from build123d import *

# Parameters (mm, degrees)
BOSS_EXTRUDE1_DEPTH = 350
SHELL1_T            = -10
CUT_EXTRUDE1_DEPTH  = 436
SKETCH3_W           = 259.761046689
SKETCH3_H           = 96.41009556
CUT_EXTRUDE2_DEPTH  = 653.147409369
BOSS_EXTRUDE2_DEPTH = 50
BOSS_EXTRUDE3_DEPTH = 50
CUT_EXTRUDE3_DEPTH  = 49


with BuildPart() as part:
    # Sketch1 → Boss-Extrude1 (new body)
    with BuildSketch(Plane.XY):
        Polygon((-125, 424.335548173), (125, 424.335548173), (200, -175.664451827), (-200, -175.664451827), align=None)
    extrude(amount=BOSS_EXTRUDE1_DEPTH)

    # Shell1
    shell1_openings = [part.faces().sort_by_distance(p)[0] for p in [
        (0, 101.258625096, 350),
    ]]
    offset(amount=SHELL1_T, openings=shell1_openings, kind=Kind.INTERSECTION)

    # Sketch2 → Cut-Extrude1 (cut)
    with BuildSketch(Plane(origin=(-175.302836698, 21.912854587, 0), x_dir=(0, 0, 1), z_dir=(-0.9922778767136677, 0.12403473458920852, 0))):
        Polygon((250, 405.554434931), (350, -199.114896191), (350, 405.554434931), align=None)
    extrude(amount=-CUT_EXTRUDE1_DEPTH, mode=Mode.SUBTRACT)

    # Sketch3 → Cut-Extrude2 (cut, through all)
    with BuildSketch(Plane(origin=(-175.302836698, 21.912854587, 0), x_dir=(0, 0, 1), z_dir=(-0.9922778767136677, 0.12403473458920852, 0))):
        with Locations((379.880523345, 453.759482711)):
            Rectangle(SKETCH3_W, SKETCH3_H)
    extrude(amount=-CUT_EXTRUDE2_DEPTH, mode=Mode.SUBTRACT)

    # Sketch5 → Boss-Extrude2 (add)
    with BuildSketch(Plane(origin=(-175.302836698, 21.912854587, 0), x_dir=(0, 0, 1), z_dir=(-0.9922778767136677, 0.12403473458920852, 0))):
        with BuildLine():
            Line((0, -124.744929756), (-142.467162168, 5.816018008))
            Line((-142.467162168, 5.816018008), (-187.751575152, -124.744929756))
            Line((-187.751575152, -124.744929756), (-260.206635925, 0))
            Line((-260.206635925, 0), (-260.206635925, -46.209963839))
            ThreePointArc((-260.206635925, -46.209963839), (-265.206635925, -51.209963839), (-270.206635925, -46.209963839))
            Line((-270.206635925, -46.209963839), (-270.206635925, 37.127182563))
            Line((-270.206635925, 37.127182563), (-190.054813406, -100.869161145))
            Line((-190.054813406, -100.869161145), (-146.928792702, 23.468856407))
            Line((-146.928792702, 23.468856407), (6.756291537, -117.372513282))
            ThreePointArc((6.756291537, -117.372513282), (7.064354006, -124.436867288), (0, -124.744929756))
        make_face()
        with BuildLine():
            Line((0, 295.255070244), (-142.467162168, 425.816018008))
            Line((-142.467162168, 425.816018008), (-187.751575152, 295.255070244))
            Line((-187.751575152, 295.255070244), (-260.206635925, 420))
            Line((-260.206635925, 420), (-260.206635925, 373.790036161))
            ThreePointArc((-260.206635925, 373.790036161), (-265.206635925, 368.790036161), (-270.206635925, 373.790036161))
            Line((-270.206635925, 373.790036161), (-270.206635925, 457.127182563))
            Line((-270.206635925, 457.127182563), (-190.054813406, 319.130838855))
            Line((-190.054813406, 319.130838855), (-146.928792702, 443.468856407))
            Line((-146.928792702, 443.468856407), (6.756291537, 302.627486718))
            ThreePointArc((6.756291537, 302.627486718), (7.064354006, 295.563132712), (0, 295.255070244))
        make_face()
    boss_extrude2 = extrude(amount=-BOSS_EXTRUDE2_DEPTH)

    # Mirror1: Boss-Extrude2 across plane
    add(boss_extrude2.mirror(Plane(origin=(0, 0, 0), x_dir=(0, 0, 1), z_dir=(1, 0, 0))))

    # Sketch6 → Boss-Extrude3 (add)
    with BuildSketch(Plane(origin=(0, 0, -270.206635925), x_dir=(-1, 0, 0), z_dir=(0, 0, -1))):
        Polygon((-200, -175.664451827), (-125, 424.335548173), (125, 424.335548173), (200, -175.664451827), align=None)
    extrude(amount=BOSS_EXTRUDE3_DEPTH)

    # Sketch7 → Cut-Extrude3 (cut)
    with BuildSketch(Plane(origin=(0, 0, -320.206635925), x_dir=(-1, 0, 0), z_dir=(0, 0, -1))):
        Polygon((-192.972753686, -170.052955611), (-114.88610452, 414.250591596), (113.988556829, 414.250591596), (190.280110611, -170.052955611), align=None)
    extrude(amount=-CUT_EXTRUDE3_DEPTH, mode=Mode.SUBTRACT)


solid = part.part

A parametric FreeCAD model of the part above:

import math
import FreeCAD as App
import Part
import Sketcher

V = App.Vector
Q = App.Units.Quantity


def faces_at(feature, points):
    """Names of the faces that lie closest to the given points."""
    faces = feature.Shape.Faces
    near = lambda p: min(range(len(faces)), key=lambda i: faces[i].distToShape(Part.Vertex(*p))[0])
    return sorted({f"Face{near(p) + 1}" for p in points})

doc = App.newDocument("Part")
body = doc.addObject("PartDesign::Body", "Body")

sketch1 = body.newObject("Sketcher::SketchObject", "Sketch")
sketch1.AttachmentSupport = (doc.getObject("XY_Plane"), [""])
sketch1.MapMode = "FlatFace"
sketch1.addGeometry(Part.LineSegment(V(125, 424.335548, 0), V(-125, 424.335548, 0)), False)
sketch1.addGeometry(Part.LineSegment(V(-125, 424.335548, 0), V(-200, -175.664452, 0)), False)
sketch1.addGeometry(Part.LineSegment(V(-200, -175.664452, 0), V(200, -175.664452, 0)), False)
sketch1.addGeometry(Part.LineSegment(V(200, -175.664452, 0), V(125, 424.335548, 0)), False)
sketch1.addConstraint(Sketcher.Constraint("Coincident", 0, 2, 1, 1))
sketch1.addConstraint(Sketcher.Constraint("Coincident", 1, 2, 2, 1))
sketch1.addConstraint(Sketcher.Constraint("Coincident", 2, 2, 3, 1))
sketch1.addConstraint(Sketcher.Constraint("Coincident", 3, 2, 0, 1))
sketch1.addConstraint(Sketcher.Constraint("Horizontal", 0))
sketch1.addConstraint(Sketcher.Constraint("Horizontal", 2))
sketch1.addConstraint(Sketcher.Constraint("Equal", 1, 3))
sketch1.addConstraint(Sketcher.Constraint("DistanceX", 0, 2, 0, 1, Q("250 mm")))
sketch1.addConstraint(Sketcher.Constraint("DistanceX", 2, 1, 2, 2, Q("400 mm")))
sketch1.addConstraint(Sketcher.Constraint("DistanceX", 0, 2, -1, 1, Q("125 mm")))
sketch1.addConstraint(Sketcher.Constraint("DistanceY", 1, 2, 0, 2, Q("600 mm")))
sketch1.addConstraint(Sketcher.Constraint("DistanceY", -1, 1, 0, 2, Q("424.335548 mm")))
pad1 = body.newObject("PartDesign::Pad", "Pad")
pad1.Profile = sketch1
pad1.Length = 350
doc.recompute()

thickness = body.newObject("PartDesign::Thickness", "Thickness")
thickness.Base = (pad1, faces_at(pad1, [(0, 124.336, 350)]))
thickness.Value = 10
thickness.Reversed = True
thickness.Join = "Intersection"

sketch2 = body.newObject("Sketcher::SketchObject", "Sketch001")
sketch2.Placement = App.Placement(V(-175.302837, 21.912855, 0), App.Rotation(V(0, 0, 1), V(0.124034735, 0.992277877, 0), V(-0.992277877, 0.124034735, 0), "ZXY"))
sketch2.addGeometry(Part.LineSegment(V(250, 405.554435, 0), V(350, -199.114896, 0)), False)
sketch2.addGeometry(Part.LineSegment(V(350, -199.114896, 0), V(350, 405.554435, 0)), False)
sketch2.addGeometry(Part.LineSegment(V(350, 405.554435, 0), V(250, 405.554435, 0)), False)
sketch2.addConstraint(Sketcher.Constraint("Coincident", 0, 2, 1, 1))
sketch2.addConstraint(Sketcher.Constraint("Coincident", 1, 2, 2, 1))
sketch2.addConstraint(Sketcher.Constraint("Coincident", 2, 2, 0, 1))
sketch2.addConstraint(Sketcher.Constraint("Vertical", 1))
sketch2.addConstraint(Sketcher.Constraint("Horizontal", 2))
sketch2.addConstraint(Sketcher.Constraint("DistanceX", 2, 2, 2, 1, Q("100 mm")))
sketch2.addConstraint(Sketcher.Constraint("DistanceX", -1, 1, 0, 2, Q("350 mm")))
sketch2.addConstraint(Sketcher.Constraint("DistanceY", 1, 1, 1, 2, Q("604.669332 mm")))
sketch2.addConstraint(Sketcher.Constraint("DistanceY", 0, 2, -1, 1, Q("199.114896 mm")))
pocket1 = body.newObject("PartDesign::Pocket", "Pocket")
pocket1.Profile = sketch2
pocket1.Length = 436

sketch3 = body.newObject("Sketcher::SketchObject", "Sketch002")
sketch3.Placement = App.Placement(V(-175.302837, 21.912855, 0), App.Rotation(V(0, 0, 1), V(0.124034735, 0.992277877, 0), V(-0.992277877, 0.124034735, 0), "ZXY"))
sketch3.addGeometry(Part.LineSegment(V(250, 501.964531, 0), V(250, 405.554435, 0)), False)
sketch3.addGeometry(Part.LineSegment(V(250, 405.554435, 0), V(509.761047, 405.554435, 0)), False)
sketch3.addGeometry(Part.LineSegment(V(509.761047, 405.554435, 0), V(509.761047, 501.964531, 0)), False)
sketch3.addGeometry(Part.LineSegment(V(509.761047, 501.964531, 0), V(250, 501.964531, 0)), False)
sketch3.addConstraint(Sketcher.Constraint("Coincident", 0, 2, 1, 1))
sketch3.addConstraint(Sketcher.Constraint("Coincident", 1, 2, 2, 1))
sketch3.addConstraint(Sketcher.Constraint("Coincident", 2, 2, 3, 1))
sketch3.addConstraint(Sketcher.Constraint("Coincident", 3, 2, 0, 1))
sketch3.addConstraint(Sketcher.Constraint("Vertical", 0))
sketch3.addConstraint(Sketcher.Constraint("Horizontal", 1))
sketch3.addConstraint(Sketcher.Constraint("Vertical", 2))
sketch3.addConstraint(Sketcher.Constraint("Horizontal", 3))
sketch3.addConstraint(Sketcher.Constraint("DistanceX", -1, 1, 0, 2, Q("250 mm")))
sketch3.addConstraint(Sketcher.Constraint("DistanceX", 1, 1, 1, 2, Q("259.761047 mm")))
sketch3.addConstraint(Sketcher.Constraint("DistanceY", 0, 2, 0, 1, Q("96.410096 mm")))
sketch3.addConstraint(Sketcher.Constraint("DistanceY", -1, 1, 2, 2, Q("501.964531 mm")))
pocket2 = body.newObject("PartDesign::Pocket", "Pocket001")
pocket2.Profile = sketch3
pocket2.Type = "ThroughAll"

sketch4 = body.newObject("Sketcher::SketchObject", "Sketch003")
sketch4.Placement = App.Placement(V(-175.302837, 21.912855, 0), App.Rotation(V(0, 0, 1), V(0.124034735, 0.992277877, 0), V(-0.992277877, 0.124034735, 0), "ZXY"))
sketch4.addGeometry(Part.LineSegment(V(-142.467162, 5.816018, 0), V(0, -124.74493, 0)), False)
sketch4.addGeometry(Part.ArcOfCircle(Part.Circle(V(3.378146, -121.058722, 0), V(0, 0, 1), 5), math.radians(-132.503027), math.radians(47.496973)), False)
sketch4.addGeometry(Part.LineSegment(V(6.756292, -117.372513, 0), V(-146.928793, 23.468856, 0)), False)
sketch4.addGeometry(Part.LineSegment(V(-146.928793, 23.468856, 0), V(-190.054813, -100.869161, 0)), False)
sketch4.addGeometry(Part.LineSegment(V(-190.054813, -100.869161, 0), V(-270.206636, 37.127183, 0)), False)
sketch4.addGeometry(Part.LineSegment(V(-270.206636, 37.127183, 0), V(-270.206636, -46.209964, 0)), False)
sketch4.addGeometry(Part.ArcOfCircle(Part.Circle(V(-265.206636, -46.209964, 0), V(0, 0, 1), 5), math.radians(180), math.radians(360)), False)
sketch4.addGeometry(Part.LineSegment(V(-260.206636, -46.209964, 0), V(-260.206636, 0, 0)), False)
sketch4.addGeometry(Part.LineSegment(V(-260.206636, 0, 0), V(-187.751575, -124.74493, 0)), False)
sketch4.addGeometry(Part.LineSegment(V(-187.751575, -124.74493, 0), V(-142.467162, 5.816018, 0)), False)
sketch4.addGeometry(Part.LineSegment(V(-142.467162, 425.816018, 0), V(0, 295.25507, 0)), False)
sketch4.addGeometry(Part.ArcOfCircle(Part.Circle(V(3.378146, 298.941279, 0), V(0, 0, 1), 5), math.radians(-132.503027), math.radians(47.496973)), False)
sketch4.addGeometry(Part.LineSegment(V(6.756292, 302.627487, 0), V(-146.928793, 443.468857, 0)), False)
sketch4.addGeometry(Part.LineSegment(V(-146.928793, 443.468857, 0), V(-190.054813, 319.130839, 0)), False)
sketch4.addGeometry(Part.LineSegment(V(-190.054813, 319.130839, 0), V(-270.206636, 457.127183, 0)), False)
sketch4.addGeometry(Part.LineSegment(V(-270.206636, 457.127183, 0), V(-270.206636, 373.790036, 0)), False)
sketch4.addGeometry(Part.ArcOfCircle(Part.Circle(V(-265.206636, 373.790036, 0), V(0, 0, 1), 5), math.radians(180), math.radians(360)), False)
sketch4.addGeometry(Part.LineSegment(V(-260.206636, 373.790036, 0), V(-260.206636, 420, 0)), False)
sketch4.addGeometry(Part.LineSegment(V(-260.206636, 420, 0), V(-187.751575, 295.25507, 0)), False)
sketch4.addGeometry(Part.LineSegment(V(-187.751575, 295.25507, 0), V(-142.467162, 425.816018, 0)), False)
sketch4.addConstraint(Sketcher.Constraint("Tangent", 0, 2, 1, 1))
sketch4.addConstraint(Sketcher.Constraint("Tangent", 1, 2, 2, 1))
sketch4.addConstraint(Sketcher.Constraint("Coincident", 2, 2, 3, 1))
sketch4.addConstraint(Sketcher.Constraint("Coincident", 3, 2, 4, 1))
sketch4.addConstraint(Sketcher.Constraint("Coincident", 4, 2, 5, 1))
sketch4.addConstraint(Sketcher.Constraint("Tangent", 5, 2, 6, 1))
sketch4.addConstraint(Sketcher.Constraint("Tangent", 6, 2, 7, 1))
sketch4.addConstraint(Sketcher.Constraint("Coincident", 7, 2, 8, 1))
sketch4.addConstraint(Sketcher.Constraint("Coincident", 8, 2, 9, 1))
sketch4.addConstraint(Sketcher.Constraint("Coincident", 9, 2, 0, 1))
sketch4.addConstraint(Sketcher.Constraint("Tangent", 10, 2, 11, 1))
sketch4.addConstraint(Sketcher.Constraint("Tangent", 11, 2, 12, 1))
sketch4.addConstraint(Sketcher.Constraint("Coincident", 12, 2, 13, 1))
sketch4.addConstraint(Sketcher.Constraint("Coincident", 13, 2, 14, 1))
sketch4.addConstraint(Sketcher.Constraint("Coincident", 14, 2, 15, 1))
sketch4.addConstraint(Sketcher.Constraint("Tangent", 15, 2, 16, 1))
sketch4.addConstraint(Sketcher.Constraint("Tangent", 16, 2, 17, 1))
sketch4.addConstraint(Sketcher.Constraint("Coincident", 17, 2, 18, 1))
sketch4.addConstraint(Sketcher.Constraint("Coincident", 18, 2, 19, 1))
sketch4.addConstraint(Sketcher.Constraint("Coincident", 19, 2, 10, 1))
sketch4.addConstraint(Sketcher.Constraint("Vertical", 5))
sketch4.addConstraint(Sketcher.Constraint("Vertical", 7))
sketch4.addConstraint(Sketcher.Constraint("Vertical", 15))
sketch4.addConstraint(Sketcher.Constraint("Vertical", 17))
sketch4.addConstraint(Sketcher.Constraint("Equal", 1, 6))
sketch4.addConstraint(Sketcher.Constraint("Equal", 6, 11))
sketch4.addConstraint(Sketcher.Constraint("Equal", 11, 16))
sketch4.addConstraint(Sketcher.Constraint("PointOnObject", 0, 2, -2))
sketch4.addConstraint(Sketcher.Constraint("PointOnObject", 7, 2, -1))
sketch4.addConstraint(Sketcher.Constraint("PointOnObject", 10, 2, -2))
sketch4.addConstraint(Sketcher.Constraint("Parallel", 0, 2))
sketch4.addConstraint(Sketcher.Constraint("Parallel", 4, 8))
sketch4.addConstraint(Sketcher.Constraint("Parallel", 3, 9))
sketch4.addConstraint(Sketcher.Constraint("Parallel", 2, 10))
sketch4.addConstraint(Sketcher.Constraint("Parallel", 10, 12))
sketch4.addConstraint(Sketcher.Constraint("Parallel", 9, 13))
sketch4.addConstraint(Sketcher.Constraint("Parallel", 8, 14))
sketch4.addConstraint(Sketcher.Constraint("Parallel", 14, 18))
sketch4.addConstraint(Sketcher.Constraint("Parallel", 13, 19))
sketch4.addConstraint(Sketcher.Constraint("Horizontal", 0, 2, 8, 2))
sketch4.addConstraint(Sketcher.Constraint("Horizontal", 10, 2, 18, 2))
sketch4.addConstraint(Sketcher.Constraint("Vertical", 6, 3, 16, 3))
sketch4.addConstraint(Sketcher.Constraint("Vertical", 2, 2, 12, 2))
sketch4.addConstraint(Sketcher.Constraint("Vertical", 3, 2, 13, 2))
sketch4.addConstraint(Sketcher.Constraint("Vertical", 8, 2, 18, 2))
sketch4.addConstraint(Sketcher.Constraint("Equal", 5, 15))
sketch4.addConstraint(Sketcher.Constraint("Radius", 1, Q("5 mm")))
sketch4.addConstraint(Sketcher.Constraint("DistanceY", -1, 1, 17, 2, Q("420 mm")))
sketch4.addConstraint(Sketcher.Constraint("Distance", 0, Q("193.243508 mm")))
sketch4.addConstraint(Sketcher.Constraint("Distance", 2, Q("208.45958 mm")))
sketch4.addConstraint(Sketcher.Constraint("Distance", 4, Q("159.584791 mm")))
sketch4.addConstraint(Sketcher.Constraint("DistanceY", 5, 2, 5, 1, Q("83.337146 mm")))
sketch4.addConstraint(Sketcher.Constraint("DistanceY", 7, 1, 7, 2, Q("46.209964 mm")))
sketch4.addConstraint(Sketcher.Constraint("DistanceY", 1, 3, -1, 1, Q("121.058722 mm")))
sketch4.addConstraint(Sketcher.Constraint("DistanceY", 0, 2, -1, 1, Q("124.74493 mm")))
sketch4.addConstraint(Sketcher.Constraint("DistanceY", 3, 2, -1, 1, Q("100.869161 mm")))
pad2 = body.newObject("PartDesign::Pad", "Pad001")
pad2.Profile = sketch4
pad2.Length = 50
pad2.Reversed = True
doc.recompute()

mirrored = body.newObject("PartDesign::Mirrored", "Mirrored")
mirrored.Originals = [pad2]
mirrored.MirrorPlane = (doc.getObject("YZ_Plane"), [""])
body.Tip = mirrored

sketch5 = body.newObject("Sketcher::SketchObject", "Sketch004")
sketch5.AttachmentSupport = (doc.getObject("XY_Plane"), [""])
sketch5.MapMode = "FlatFace"
sketch5.AttachmentOffset = App.Placement(V(0, 0, -270.206636), App.Rotation())
sketch5.addGeometry(Part.LineSegment(V(125, 424.335548, 0), V(200, -175.664452, 0)), False)
sketch5.addGeometry(Part.LineSegment(V(200, -175.664452, 0), V(-200, -175.664452, 0)), False)
sketch5.addGeometry(Part.LineSegment(V(-200, -175.664452, 0), V(-125, 424.335548, 0)), False)
sketch5.addGeometry(Part.LineSegment(V(-125, 424.335548, 0), V(125, 424.335548, 0)), False)
sketch5.addConstraint(Sketcher.Constraint("Coincident", 0, 2, 1, 1))
sketch5.addConstraint(Sketcher.Constraint("Coincident", 1, 2, 2, 1))
sketch5.addConstraint(Sketcher.Constraint("Coincident", 2, 2, 3, 1))
sketch5.addConstraint(Sketcher.Constraint("Coincident", 3, 2, 0, 1))
sketch5.addConstraint(Sketcher.Constraint("Horizontal", 1))
sketch5.addConstraint(Sketcher.Constraint("Horizontal", 3))
sketch5.addConstraint(Sketcher.Constraint("Equal", 0, 2))
sketch5.addConstraint(Sketcher.Constraint("DistanceX", 1, 2, 1, 1, Q("400 mm")))
sketch5.addConstraint(Sketcher.Constraint("DistanceX", 3, 1, 3, 2, Q("250 mm")))
sketch5.addConstraint(Sketcher.Constraint("DistanceX", -1, 1, 0, 2, Q("200 mm")))
sketch5.addConstraint(Sketcher.Constraint("DistanceY", 1, 2, 2, 2, Q("600 mm")))
sketch5.addConstraint(Sketcher.Constraint("DistanceY", 0, 2, -1, 1, Q("175.664452 mm")))
pad3 = body.newObject("PartDesign::Pad", "Pad002")
pad3.Profile = sketch5
pad3.Length = 50
pad3.Reversed = True

sketch6 = body.newObject("Sketcher::SketchObject", "Sketch005")
sketch6.AttachmentSupport = (doc.getObject("XY_Plane"), [""])
sketch6.MapMode = "FlatFace"
sketch6.AttachmentOffset = App.Placement(V(0, 0, -320.206636), App.Rotation())
sketch6.addGeometry(Part.LineSegment(V(114.886105, 414.250592, 0), V(192.972754, -170.052956, 0)), False)
sketch6.addGeometry(Part.LineSegment(V(192.972754, -170.052956, 0), V(-190.280111, -170.052956, 0)), False)
sketch6.addGeometry(Part.LineSegment(V(-190.280111, -170.052956, 0), V(-113.988557, 414.250592, 0)), False)
sketch6.addGeometry(Part.LineSegment(V(-113.988557, 414.250592, 0), V(114.886105, 414.250592, 0)), False)
sketch6.addConstraint(Sketcher.Constraint("Coincident", 0, 2, 1, 1))
sketch6.addConstraint(Sketcher.Constraint("Coincident", 1, 2, 2, 1))
sketch6.addConstraint(Sketcher.Constraint("Coincident", 2, 2, 3, 1))
sketch6.addConstraint(Sketcher.Constraint("Coincident", 3, 2, 0, 1))
sketch6.addConstraint(Sketcher.Constraint("Horizontal", 1))
sketch6.addConstraint(Sketcher.Constraint("Horizontal", 3))
sketch6.addConstraint(Sketcher.Constraint("DistanceX", 3, 1, 3, 2, Q("228.874661 mm")))
sketch6.addConstraint(Sketcher.Constraint("Distance", 2, Q("589.26313 mm")))
sketch6.addConstraint(Sketcher.Constraint("DistanceX", 1, 2, 1, 1, Q("383.252864 mm")))
sketch6.addConstraint(Sketcher.Constraint("DistanceX", 1, 2, -1, 1, Q("190.280111 mm")))
sketch6.addConstraint(Sketcher.Constraint("DistanceY", -1, 1, 2, 2, Q("414.250592 mm")))
sketch6.addConstraint(Sketcher.Constraint("DistanceX", 2, 2, 0, 2, Q("306.961311 mm")))
pocket3 = body.newObject("PartDesign::Pocket", "Pocket002")
pocket3.Profile = sketch6
pocket3.Length = 49
pocket3.Reversed = True

doc.recompute()
